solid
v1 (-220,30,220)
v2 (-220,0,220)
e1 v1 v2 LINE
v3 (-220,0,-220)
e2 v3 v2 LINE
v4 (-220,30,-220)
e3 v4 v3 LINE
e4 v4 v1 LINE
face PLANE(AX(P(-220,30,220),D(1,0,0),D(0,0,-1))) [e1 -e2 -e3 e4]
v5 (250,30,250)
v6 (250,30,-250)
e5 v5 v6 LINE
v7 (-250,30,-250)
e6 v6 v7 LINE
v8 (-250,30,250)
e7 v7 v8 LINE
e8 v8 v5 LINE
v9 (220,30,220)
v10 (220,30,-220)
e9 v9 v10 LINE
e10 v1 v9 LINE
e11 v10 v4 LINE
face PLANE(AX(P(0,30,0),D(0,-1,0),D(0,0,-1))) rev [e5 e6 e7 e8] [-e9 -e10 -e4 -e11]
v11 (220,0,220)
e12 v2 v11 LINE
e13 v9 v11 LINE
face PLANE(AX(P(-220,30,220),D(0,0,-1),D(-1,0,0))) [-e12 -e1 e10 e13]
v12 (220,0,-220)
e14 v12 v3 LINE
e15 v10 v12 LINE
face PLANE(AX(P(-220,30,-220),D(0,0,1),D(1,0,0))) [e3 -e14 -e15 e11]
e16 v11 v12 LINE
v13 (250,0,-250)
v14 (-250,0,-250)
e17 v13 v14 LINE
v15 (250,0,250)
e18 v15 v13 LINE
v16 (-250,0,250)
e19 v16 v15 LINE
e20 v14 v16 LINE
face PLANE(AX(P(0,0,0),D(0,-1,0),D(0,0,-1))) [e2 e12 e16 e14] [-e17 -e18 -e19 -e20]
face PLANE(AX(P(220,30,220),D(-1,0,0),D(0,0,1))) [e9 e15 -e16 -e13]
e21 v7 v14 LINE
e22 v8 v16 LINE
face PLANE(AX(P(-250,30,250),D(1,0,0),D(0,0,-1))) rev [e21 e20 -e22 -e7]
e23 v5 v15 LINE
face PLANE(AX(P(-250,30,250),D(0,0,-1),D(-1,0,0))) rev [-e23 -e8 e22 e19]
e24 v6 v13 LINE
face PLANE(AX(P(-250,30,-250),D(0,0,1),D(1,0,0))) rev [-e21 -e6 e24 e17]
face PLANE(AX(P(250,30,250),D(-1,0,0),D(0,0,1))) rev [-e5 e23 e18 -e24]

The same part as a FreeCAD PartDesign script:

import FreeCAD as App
import Part
import Sketcher
Q = App.Units.Quantity


def add_polygon(sketch, points):
    """Adds a closed chain of lines whose ends are joined by coincident constraints."""
    first, n = sketch.GeometryCount, len(points)
    for a, b in zip(points, points[1:] + points[:1]):
        sketch.addGeometry(Part.LineSegment(App.Vector(*a, 0), App.Vector(*b, 0)), False)
    for i in range(n):
        sketch.addConstraint(Sketcher.Constraint("Coincident", first + i, 2, first + (i + 1) % n, 1))

doc = App.newDocument("Part")
params = doc.addObject("Spreadsheet::Sheet", "Params")
for row, (alias, value) in enumerate([
    ("sketch1_width", "500 mm"),
    ("sketch1_width2", "440 mm"),
    ("pad1_length", "30 mm"),
], start=1):
    params.set(f"A{row}", alias)
    params.set(f"B{row}", "=" + value)
    params.setAlias(f"B{row}", alias)

body = doc.addObject("PartDesign::Body", "Body")

# Sketch on XZ plane
sketch1 = body.newObject("Sketcher::SketchObject", "Sketch")
sketch1.AttachmentSupport = (doc.getObject("XZ_Plane"), [""])
sketch1.MapMode = "FlatFace"
add_polygon(sketch1, [(-250, -250), (-250, 250), (250, 250), (250, -250)])  # lines 0-3
add_polygon(sketch1, [(220, 220), (-220, 220), (-220, -220), (220, -220)])  # lines 4-7
sketch1.addConstraint(Sketcher.Constraint("Vertical", 0))
sketch1.addConstraint(Sketcher.Constraint("Horizontal", 1))
sketch1.addConstraint(Sketcher.Constraint("Vertical", 2))
sketch1.addConstraint(Sketcher.Constraint("Horizontal", 3))
sketch1.addConstraint(Sketcher.Constraint("Horizontal", 4))
sketch1.addConstraint(Sketcher.Constraint("Vertical", 5))
sketch1.addConstraint(Sketcher.Constraint("Horizontal", 6))
sketch1.addConstraint(Sketcher.Constraint("Vertical", 7))
sketch1.addConstraint(Sketcher.Constraint("Symmetric", 0, 2, 2, 2, -1, 1))
sketch1.addConstraint(Sketcher.Constraint("Symmetric", 4, 2, 6, 2, -1, 1))
sketch1.addConstraint(Sketcher.Constraint("Equal", 3, 0))
sketch1.addConstraint(Sketcher.Constraint("Equal", 6, 5))
sketch1.addConstraint(Sketcher.Constraint("DistanceX", 1, 1, 1, 2, Q("500 mm")))
sketch1.addConstraint(Sketcher.Constraint("DistanceX", 4, 2, 4, 1, Q("440 mm")))
sketch1.setExpression("Constraints[20]", "Params.sketch1_width")
sketch1.setExpression("Constraints[21]", "Params.sketch1_width2")
pad1 = body.newObject("PartDesign::Pad", "Pad")
pad1.Profile = sketch1
pad1.setExpression("Length", "Params.pad1_length")
pad1.Reversed = True

doc.recompute()
